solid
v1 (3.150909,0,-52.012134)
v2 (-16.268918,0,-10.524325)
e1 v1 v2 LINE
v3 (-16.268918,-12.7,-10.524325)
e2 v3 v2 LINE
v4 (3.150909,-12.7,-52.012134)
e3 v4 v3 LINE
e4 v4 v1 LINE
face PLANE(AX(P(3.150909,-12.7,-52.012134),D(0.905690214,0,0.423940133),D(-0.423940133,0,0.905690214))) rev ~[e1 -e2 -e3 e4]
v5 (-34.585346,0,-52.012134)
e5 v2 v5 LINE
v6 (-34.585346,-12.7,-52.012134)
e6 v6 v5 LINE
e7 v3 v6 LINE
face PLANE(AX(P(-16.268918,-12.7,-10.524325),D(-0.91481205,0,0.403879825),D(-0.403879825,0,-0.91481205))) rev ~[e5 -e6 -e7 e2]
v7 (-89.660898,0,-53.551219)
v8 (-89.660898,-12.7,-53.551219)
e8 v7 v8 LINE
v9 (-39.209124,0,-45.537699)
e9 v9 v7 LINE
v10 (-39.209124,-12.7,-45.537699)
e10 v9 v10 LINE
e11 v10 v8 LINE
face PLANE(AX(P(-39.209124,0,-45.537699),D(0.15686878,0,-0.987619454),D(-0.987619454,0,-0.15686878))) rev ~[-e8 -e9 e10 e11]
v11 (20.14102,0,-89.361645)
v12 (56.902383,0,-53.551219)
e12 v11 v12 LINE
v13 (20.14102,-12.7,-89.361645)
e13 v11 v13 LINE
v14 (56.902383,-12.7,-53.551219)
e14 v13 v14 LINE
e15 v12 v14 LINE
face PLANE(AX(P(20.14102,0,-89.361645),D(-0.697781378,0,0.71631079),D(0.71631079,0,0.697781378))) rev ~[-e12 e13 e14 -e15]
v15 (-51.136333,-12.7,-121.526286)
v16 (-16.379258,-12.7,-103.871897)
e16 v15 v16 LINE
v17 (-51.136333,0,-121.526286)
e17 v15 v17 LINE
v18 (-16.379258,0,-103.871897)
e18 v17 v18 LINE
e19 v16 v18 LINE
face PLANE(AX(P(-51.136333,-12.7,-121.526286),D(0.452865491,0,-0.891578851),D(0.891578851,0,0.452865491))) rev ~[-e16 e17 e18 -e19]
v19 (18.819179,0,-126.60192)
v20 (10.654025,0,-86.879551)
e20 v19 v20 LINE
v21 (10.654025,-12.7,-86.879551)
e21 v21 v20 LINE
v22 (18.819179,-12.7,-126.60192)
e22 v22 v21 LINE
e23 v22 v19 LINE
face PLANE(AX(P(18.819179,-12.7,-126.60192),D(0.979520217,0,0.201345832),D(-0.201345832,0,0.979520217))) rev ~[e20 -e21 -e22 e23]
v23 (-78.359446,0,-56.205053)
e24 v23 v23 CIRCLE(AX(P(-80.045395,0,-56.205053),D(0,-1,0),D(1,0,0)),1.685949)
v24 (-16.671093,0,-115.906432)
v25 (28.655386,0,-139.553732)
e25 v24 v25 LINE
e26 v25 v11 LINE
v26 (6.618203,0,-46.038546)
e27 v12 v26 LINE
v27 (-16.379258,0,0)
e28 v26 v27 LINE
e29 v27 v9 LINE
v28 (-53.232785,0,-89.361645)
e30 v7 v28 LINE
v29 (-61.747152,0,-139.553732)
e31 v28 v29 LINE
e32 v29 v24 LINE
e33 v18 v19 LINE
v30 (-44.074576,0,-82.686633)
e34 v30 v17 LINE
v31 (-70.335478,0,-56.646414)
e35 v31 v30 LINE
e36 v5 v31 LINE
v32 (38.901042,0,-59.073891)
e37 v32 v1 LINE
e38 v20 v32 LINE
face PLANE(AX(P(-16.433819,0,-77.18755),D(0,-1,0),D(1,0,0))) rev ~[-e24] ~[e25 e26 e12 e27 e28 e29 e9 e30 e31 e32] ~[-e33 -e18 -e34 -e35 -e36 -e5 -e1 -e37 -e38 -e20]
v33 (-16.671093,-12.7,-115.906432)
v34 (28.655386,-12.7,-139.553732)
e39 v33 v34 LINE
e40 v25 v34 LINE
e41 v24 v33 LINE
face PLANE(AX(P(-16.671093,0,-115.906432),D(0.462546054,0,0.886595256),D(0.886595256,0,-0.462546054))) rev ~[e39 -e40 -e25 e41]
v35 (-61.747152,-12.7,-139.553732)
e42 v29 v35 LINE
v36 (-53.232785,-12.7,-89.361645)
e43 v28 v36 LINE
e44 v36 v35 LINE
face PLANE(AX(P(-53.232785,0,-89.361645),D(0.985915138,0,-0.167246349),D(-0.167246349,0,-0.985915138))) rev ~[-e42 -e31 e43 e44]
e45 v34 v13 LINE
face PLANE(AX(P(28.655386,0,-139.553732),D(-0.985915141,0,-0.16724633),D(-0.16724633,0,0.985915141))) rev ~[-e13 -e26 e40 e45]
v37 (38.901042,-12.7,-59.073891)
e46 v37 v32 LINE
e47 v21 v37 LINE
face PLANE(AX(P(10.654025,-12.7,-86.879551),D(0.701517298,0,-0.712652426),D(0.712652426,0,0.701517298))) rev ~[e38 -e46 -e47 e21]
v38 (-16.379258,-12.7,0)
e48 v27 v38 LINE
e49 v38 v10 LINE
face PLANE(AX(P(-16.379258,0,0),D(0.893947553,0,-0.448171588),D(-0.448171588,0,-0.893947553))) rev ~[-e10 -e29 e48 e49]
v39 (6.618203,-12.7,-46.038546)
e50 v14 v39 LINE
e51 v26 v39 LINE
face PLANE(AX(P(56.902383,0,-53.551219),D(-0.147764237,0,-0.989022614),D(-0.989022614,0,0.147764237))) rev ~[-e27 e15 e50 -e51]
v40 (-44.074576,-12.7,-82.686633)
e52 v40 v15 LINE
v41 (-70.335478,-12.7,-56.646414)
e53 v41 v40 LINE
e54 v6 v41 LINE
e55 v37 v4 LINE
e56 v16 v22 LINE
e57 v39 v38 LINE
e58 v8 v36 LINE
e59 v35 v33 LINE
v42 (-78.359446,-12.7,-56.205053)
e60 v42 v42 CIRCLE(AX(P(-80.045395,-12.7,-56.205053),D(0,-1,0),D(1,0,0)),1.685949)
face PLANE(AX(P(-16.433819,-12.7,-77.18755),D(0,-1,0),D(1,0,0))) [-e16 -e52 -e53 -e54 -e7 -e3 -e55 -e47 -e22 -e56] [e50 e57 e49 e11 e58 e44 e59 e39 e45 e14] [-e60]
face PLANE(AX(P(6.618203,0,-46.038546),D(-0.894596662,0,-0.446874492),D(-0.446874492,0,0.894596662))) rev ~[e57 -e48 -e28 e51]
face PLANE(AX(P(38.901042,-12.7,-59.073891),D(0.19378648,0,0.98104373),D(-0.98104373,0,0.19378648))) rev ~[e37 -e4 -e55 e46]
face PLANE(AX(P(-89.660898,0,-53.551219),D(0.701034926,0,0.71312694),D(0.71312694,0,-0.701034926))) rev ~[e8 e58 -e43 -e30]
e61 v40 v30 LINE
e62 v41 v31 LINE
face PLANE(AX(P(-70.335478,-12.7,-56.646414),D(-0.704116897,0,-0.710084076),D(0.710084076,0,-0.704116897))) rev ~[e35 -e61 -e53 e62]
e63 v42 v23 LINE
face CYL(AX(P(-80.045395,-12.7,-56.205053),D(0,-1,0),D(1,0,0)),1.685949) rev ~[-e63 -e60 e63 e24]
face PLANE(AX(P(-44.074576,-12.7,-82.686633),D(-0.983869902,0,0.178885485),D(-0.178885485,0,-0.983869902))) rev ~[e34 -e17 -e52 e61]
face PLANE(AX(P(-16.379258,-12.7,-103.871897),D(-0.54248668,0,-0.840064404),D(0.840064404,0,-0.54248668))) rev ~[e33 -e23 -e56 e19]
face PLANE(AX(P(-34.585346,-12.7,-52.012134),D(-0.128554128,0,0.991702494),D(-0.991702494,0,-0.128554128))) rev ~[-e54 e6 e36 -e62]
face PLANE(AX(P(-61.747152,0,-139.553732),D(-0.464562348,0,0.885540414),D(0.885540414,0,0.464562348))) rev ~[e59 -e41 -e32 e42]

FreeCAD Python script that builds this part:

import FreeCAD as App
import Part
import Sketcher
from FreeCAD import Vector
Q = App.Units.Quantity


def add_polygon(sketch, points):
    """Adds a closed chain of lines whose ends are joined by coincident constraints."""
    first, n = sketch.GeometryCount, len(points)
    for a, b in zip(points, points[1:] + points[:1]):
        sketch.addGeometry(Part.LineSegment(App.Vector(*a, 0), App.Vector(*b, 0)), False)
    for i in range(n):
        sketch.addConstraint(Sketcher.Constraint("Coincident", first + i, 2, first + (i + 1) % n, 1))

doc = App.newDocument("Part")
body = doc.addObject("PartDesign::Body", "Body")

sketch1 = body.newObject("Sketcher::SketchObject", "Sketch")
sketch1.AttachmentSupport = (doc.getObject("XZ_Plane"), [""])
sketch1.MapMode = "FlatFace"
add_polygon(sketch1, [(7, -46), (-16, 0), (-39, -46), (-90, -54), (-53, -89), (-62, -140), (-17, -116), (29, -140), (20, -89), (57, -54)])
sketch1.addConstraint([
    Sketcher.Constraint("PointOnObject", 0, 2, -1),
    Sketcher.Constraint("Horizontal", 4, 2, 6, 2),
    Sketcher.Constraint("Horizontal", 3, 2, 7, 2),
    Sketcher.Constraint("Horizontal", 2, 2, 8, 2),
    Sketcher.Constraint("Equal", 4, 7),
    Sketcher.Constraint("DistanceY", 1, 2, -1, 1, 45.537699),
    Sketcher.Constraint("DistanceX", 2, 2, -1, 1, 89.660898),
    Sketcher.Constraint("DistanceY", 4, 2, 5, 2, 23.6473),
    Sketcher.Constraint("DistanceY", 7, 2, 9, 2, 43.323099),
    Sketcher.Constraint("Distance", 0, 51.462908),
    Sketcher.Constraint("Distance", 1, 50.940012),
    Sketcher.Constraint("Distance", 3, 51.082228),
    Sketcher.Constraint("Distance", 8, 51.320409),
    Sketcher.Constraint("DistanceX", 0, 2, -1, 1, 16.379258),
    Sketcher.Constraint("DistanceY", 2, 2, -1, 1, 53.551219),
    Sketcher.Constraint("DistanceY", 4, 2, -1, 1, 139.553732),
    Sketcher.Constraint("DistanceX", -1, 1, 7, 2, 20.14102),
    Sketcher.Constraint("DistanceX", 3, 2, 1, 2, 14.023661),
    Sketcher.Constraint("DistanceX", 4, 2, 5, 2, 45.076059),
    Sketcher.Constraint("DistanceX", 1, 2, 5, 2, 22.538031),
])
pad1 = body.newObject("PartDesign::Pad", "Pad")
pad1.Profile = sketch1
pad1.Length = Q("0.5 in")

sketch2 = body.newObject("Sketcher::SketchObject", "Sketch001")
sketch2.AttachmentSupport = (doc.getObject("XZ_Plane"), [""])
sketch2.MapMode = "FlatFace"
sketch2.AttachmentOffset = App.Placement(Vector(0, 0, 0.5 * 25.4), App.Rotation())
add_polygon(sketch2, [(3, -52), (-16, -11), (-35, -52), (-70, -57), (-44, -83), (-51, -122), (-16, -104), (19, -127), (11, -87), (39, -59)])
sketch2.addConstraint([
    Sketcher.Constraint("Horizontal", 1, 2, 9, 2),
    Sketcher.Constraint("DistanceY", 3, 2, 1, 2, 30.674499),
    Sketcher.Constraint("DistanceX", 2, 2, 3, 2, 26.260902),
    Sketcher.Constraint("DistanceX", 3, 2, 7, 2, 54.728601),
    Sketcher.Constraint("DistanceX", 5, 2, 8, 2, 55.2803),
    Sketcher.Constraint("Distance", 2, 36.049251),
    Sketcher.Constraint("Distance", 4, 39.476411),
    Sketcher.Constraint("Distance", 6, 41.899689),
    Sketcher.Constraint("DistanceX", 5, 2, -1, 1, 16.379258),
    Sketcher.Constraint("DistanceX", -1, 1, 6, 2, 18.819179),
    Sketcher.Constraint("DistanceY", 6, 2, -1, 1, 126.60192),
    Sketcher.Constraint("DistanceY", 7, 2, -1, 1, 86.879551),
    Sketcher.Constraint("DistanceY", 8, 2, -1, 1, 59.073891),
    Sketcher.Constraint("DistanceX", -1, 1, 9, 2, 3.150909),
    Sketcher.Constraint("DistanceX", 1, 2, 0, 2, 18.316428),
    Sketcher.Constraint("DistanceY", 1, 2, 0, 2, 41.487809),
    Sketcher.Constraint("DistanceX", 2, 2, 1, 2, 35.750132),
    Sketcher.Constraint("DistanceY", 4, 2, 1, 2, 69.514152),
    Sketcher.Constraint("DistanceX", 3, 2, 5, 2, 27.695318),
    Sketcher.Constraint("DistanceY", 4, 2, 5, 2, 17.654389),
])
pocket1 = body.newObject("PartDesign::Pocket", "Pocket")
pocket1.Profile = sketch2
pocket1.Length = Q("1 in")

sketch3 = body.newObject("Sketcher::SketchObject", "Sketch002")
sketch3.AttachmentSupport = (doc.getObject("XZ_Plane"), [""])
sketch3.MapMode = "FlatFace"
sketch3.AttachmentOffset = App.Placement(Vector(0, 0, 0.5 * 25.4), App.Rotation())
sketch3.addGeometry(Part.Circle(Vector(-80, -56.2, 0), Vector(0, 0, 1), 1.7), False)
sketch3.addConstraint([
    Sketcher.Constraint("Diameter", 0, 3.371898),
    Sketcher.Constraint("DistanceX", 0, 3, -1, 1, 80.045395),
    Sketcher.Constraint("DistanceY", 0, 3, -1, 1, 56.205053),
])
pocket2 = body.newObject("PartDesign::Pocket", "Pocket001")
pocket2.Profile = sketch3
pocket2.Length = Q("1 in")

doc.recompute()
